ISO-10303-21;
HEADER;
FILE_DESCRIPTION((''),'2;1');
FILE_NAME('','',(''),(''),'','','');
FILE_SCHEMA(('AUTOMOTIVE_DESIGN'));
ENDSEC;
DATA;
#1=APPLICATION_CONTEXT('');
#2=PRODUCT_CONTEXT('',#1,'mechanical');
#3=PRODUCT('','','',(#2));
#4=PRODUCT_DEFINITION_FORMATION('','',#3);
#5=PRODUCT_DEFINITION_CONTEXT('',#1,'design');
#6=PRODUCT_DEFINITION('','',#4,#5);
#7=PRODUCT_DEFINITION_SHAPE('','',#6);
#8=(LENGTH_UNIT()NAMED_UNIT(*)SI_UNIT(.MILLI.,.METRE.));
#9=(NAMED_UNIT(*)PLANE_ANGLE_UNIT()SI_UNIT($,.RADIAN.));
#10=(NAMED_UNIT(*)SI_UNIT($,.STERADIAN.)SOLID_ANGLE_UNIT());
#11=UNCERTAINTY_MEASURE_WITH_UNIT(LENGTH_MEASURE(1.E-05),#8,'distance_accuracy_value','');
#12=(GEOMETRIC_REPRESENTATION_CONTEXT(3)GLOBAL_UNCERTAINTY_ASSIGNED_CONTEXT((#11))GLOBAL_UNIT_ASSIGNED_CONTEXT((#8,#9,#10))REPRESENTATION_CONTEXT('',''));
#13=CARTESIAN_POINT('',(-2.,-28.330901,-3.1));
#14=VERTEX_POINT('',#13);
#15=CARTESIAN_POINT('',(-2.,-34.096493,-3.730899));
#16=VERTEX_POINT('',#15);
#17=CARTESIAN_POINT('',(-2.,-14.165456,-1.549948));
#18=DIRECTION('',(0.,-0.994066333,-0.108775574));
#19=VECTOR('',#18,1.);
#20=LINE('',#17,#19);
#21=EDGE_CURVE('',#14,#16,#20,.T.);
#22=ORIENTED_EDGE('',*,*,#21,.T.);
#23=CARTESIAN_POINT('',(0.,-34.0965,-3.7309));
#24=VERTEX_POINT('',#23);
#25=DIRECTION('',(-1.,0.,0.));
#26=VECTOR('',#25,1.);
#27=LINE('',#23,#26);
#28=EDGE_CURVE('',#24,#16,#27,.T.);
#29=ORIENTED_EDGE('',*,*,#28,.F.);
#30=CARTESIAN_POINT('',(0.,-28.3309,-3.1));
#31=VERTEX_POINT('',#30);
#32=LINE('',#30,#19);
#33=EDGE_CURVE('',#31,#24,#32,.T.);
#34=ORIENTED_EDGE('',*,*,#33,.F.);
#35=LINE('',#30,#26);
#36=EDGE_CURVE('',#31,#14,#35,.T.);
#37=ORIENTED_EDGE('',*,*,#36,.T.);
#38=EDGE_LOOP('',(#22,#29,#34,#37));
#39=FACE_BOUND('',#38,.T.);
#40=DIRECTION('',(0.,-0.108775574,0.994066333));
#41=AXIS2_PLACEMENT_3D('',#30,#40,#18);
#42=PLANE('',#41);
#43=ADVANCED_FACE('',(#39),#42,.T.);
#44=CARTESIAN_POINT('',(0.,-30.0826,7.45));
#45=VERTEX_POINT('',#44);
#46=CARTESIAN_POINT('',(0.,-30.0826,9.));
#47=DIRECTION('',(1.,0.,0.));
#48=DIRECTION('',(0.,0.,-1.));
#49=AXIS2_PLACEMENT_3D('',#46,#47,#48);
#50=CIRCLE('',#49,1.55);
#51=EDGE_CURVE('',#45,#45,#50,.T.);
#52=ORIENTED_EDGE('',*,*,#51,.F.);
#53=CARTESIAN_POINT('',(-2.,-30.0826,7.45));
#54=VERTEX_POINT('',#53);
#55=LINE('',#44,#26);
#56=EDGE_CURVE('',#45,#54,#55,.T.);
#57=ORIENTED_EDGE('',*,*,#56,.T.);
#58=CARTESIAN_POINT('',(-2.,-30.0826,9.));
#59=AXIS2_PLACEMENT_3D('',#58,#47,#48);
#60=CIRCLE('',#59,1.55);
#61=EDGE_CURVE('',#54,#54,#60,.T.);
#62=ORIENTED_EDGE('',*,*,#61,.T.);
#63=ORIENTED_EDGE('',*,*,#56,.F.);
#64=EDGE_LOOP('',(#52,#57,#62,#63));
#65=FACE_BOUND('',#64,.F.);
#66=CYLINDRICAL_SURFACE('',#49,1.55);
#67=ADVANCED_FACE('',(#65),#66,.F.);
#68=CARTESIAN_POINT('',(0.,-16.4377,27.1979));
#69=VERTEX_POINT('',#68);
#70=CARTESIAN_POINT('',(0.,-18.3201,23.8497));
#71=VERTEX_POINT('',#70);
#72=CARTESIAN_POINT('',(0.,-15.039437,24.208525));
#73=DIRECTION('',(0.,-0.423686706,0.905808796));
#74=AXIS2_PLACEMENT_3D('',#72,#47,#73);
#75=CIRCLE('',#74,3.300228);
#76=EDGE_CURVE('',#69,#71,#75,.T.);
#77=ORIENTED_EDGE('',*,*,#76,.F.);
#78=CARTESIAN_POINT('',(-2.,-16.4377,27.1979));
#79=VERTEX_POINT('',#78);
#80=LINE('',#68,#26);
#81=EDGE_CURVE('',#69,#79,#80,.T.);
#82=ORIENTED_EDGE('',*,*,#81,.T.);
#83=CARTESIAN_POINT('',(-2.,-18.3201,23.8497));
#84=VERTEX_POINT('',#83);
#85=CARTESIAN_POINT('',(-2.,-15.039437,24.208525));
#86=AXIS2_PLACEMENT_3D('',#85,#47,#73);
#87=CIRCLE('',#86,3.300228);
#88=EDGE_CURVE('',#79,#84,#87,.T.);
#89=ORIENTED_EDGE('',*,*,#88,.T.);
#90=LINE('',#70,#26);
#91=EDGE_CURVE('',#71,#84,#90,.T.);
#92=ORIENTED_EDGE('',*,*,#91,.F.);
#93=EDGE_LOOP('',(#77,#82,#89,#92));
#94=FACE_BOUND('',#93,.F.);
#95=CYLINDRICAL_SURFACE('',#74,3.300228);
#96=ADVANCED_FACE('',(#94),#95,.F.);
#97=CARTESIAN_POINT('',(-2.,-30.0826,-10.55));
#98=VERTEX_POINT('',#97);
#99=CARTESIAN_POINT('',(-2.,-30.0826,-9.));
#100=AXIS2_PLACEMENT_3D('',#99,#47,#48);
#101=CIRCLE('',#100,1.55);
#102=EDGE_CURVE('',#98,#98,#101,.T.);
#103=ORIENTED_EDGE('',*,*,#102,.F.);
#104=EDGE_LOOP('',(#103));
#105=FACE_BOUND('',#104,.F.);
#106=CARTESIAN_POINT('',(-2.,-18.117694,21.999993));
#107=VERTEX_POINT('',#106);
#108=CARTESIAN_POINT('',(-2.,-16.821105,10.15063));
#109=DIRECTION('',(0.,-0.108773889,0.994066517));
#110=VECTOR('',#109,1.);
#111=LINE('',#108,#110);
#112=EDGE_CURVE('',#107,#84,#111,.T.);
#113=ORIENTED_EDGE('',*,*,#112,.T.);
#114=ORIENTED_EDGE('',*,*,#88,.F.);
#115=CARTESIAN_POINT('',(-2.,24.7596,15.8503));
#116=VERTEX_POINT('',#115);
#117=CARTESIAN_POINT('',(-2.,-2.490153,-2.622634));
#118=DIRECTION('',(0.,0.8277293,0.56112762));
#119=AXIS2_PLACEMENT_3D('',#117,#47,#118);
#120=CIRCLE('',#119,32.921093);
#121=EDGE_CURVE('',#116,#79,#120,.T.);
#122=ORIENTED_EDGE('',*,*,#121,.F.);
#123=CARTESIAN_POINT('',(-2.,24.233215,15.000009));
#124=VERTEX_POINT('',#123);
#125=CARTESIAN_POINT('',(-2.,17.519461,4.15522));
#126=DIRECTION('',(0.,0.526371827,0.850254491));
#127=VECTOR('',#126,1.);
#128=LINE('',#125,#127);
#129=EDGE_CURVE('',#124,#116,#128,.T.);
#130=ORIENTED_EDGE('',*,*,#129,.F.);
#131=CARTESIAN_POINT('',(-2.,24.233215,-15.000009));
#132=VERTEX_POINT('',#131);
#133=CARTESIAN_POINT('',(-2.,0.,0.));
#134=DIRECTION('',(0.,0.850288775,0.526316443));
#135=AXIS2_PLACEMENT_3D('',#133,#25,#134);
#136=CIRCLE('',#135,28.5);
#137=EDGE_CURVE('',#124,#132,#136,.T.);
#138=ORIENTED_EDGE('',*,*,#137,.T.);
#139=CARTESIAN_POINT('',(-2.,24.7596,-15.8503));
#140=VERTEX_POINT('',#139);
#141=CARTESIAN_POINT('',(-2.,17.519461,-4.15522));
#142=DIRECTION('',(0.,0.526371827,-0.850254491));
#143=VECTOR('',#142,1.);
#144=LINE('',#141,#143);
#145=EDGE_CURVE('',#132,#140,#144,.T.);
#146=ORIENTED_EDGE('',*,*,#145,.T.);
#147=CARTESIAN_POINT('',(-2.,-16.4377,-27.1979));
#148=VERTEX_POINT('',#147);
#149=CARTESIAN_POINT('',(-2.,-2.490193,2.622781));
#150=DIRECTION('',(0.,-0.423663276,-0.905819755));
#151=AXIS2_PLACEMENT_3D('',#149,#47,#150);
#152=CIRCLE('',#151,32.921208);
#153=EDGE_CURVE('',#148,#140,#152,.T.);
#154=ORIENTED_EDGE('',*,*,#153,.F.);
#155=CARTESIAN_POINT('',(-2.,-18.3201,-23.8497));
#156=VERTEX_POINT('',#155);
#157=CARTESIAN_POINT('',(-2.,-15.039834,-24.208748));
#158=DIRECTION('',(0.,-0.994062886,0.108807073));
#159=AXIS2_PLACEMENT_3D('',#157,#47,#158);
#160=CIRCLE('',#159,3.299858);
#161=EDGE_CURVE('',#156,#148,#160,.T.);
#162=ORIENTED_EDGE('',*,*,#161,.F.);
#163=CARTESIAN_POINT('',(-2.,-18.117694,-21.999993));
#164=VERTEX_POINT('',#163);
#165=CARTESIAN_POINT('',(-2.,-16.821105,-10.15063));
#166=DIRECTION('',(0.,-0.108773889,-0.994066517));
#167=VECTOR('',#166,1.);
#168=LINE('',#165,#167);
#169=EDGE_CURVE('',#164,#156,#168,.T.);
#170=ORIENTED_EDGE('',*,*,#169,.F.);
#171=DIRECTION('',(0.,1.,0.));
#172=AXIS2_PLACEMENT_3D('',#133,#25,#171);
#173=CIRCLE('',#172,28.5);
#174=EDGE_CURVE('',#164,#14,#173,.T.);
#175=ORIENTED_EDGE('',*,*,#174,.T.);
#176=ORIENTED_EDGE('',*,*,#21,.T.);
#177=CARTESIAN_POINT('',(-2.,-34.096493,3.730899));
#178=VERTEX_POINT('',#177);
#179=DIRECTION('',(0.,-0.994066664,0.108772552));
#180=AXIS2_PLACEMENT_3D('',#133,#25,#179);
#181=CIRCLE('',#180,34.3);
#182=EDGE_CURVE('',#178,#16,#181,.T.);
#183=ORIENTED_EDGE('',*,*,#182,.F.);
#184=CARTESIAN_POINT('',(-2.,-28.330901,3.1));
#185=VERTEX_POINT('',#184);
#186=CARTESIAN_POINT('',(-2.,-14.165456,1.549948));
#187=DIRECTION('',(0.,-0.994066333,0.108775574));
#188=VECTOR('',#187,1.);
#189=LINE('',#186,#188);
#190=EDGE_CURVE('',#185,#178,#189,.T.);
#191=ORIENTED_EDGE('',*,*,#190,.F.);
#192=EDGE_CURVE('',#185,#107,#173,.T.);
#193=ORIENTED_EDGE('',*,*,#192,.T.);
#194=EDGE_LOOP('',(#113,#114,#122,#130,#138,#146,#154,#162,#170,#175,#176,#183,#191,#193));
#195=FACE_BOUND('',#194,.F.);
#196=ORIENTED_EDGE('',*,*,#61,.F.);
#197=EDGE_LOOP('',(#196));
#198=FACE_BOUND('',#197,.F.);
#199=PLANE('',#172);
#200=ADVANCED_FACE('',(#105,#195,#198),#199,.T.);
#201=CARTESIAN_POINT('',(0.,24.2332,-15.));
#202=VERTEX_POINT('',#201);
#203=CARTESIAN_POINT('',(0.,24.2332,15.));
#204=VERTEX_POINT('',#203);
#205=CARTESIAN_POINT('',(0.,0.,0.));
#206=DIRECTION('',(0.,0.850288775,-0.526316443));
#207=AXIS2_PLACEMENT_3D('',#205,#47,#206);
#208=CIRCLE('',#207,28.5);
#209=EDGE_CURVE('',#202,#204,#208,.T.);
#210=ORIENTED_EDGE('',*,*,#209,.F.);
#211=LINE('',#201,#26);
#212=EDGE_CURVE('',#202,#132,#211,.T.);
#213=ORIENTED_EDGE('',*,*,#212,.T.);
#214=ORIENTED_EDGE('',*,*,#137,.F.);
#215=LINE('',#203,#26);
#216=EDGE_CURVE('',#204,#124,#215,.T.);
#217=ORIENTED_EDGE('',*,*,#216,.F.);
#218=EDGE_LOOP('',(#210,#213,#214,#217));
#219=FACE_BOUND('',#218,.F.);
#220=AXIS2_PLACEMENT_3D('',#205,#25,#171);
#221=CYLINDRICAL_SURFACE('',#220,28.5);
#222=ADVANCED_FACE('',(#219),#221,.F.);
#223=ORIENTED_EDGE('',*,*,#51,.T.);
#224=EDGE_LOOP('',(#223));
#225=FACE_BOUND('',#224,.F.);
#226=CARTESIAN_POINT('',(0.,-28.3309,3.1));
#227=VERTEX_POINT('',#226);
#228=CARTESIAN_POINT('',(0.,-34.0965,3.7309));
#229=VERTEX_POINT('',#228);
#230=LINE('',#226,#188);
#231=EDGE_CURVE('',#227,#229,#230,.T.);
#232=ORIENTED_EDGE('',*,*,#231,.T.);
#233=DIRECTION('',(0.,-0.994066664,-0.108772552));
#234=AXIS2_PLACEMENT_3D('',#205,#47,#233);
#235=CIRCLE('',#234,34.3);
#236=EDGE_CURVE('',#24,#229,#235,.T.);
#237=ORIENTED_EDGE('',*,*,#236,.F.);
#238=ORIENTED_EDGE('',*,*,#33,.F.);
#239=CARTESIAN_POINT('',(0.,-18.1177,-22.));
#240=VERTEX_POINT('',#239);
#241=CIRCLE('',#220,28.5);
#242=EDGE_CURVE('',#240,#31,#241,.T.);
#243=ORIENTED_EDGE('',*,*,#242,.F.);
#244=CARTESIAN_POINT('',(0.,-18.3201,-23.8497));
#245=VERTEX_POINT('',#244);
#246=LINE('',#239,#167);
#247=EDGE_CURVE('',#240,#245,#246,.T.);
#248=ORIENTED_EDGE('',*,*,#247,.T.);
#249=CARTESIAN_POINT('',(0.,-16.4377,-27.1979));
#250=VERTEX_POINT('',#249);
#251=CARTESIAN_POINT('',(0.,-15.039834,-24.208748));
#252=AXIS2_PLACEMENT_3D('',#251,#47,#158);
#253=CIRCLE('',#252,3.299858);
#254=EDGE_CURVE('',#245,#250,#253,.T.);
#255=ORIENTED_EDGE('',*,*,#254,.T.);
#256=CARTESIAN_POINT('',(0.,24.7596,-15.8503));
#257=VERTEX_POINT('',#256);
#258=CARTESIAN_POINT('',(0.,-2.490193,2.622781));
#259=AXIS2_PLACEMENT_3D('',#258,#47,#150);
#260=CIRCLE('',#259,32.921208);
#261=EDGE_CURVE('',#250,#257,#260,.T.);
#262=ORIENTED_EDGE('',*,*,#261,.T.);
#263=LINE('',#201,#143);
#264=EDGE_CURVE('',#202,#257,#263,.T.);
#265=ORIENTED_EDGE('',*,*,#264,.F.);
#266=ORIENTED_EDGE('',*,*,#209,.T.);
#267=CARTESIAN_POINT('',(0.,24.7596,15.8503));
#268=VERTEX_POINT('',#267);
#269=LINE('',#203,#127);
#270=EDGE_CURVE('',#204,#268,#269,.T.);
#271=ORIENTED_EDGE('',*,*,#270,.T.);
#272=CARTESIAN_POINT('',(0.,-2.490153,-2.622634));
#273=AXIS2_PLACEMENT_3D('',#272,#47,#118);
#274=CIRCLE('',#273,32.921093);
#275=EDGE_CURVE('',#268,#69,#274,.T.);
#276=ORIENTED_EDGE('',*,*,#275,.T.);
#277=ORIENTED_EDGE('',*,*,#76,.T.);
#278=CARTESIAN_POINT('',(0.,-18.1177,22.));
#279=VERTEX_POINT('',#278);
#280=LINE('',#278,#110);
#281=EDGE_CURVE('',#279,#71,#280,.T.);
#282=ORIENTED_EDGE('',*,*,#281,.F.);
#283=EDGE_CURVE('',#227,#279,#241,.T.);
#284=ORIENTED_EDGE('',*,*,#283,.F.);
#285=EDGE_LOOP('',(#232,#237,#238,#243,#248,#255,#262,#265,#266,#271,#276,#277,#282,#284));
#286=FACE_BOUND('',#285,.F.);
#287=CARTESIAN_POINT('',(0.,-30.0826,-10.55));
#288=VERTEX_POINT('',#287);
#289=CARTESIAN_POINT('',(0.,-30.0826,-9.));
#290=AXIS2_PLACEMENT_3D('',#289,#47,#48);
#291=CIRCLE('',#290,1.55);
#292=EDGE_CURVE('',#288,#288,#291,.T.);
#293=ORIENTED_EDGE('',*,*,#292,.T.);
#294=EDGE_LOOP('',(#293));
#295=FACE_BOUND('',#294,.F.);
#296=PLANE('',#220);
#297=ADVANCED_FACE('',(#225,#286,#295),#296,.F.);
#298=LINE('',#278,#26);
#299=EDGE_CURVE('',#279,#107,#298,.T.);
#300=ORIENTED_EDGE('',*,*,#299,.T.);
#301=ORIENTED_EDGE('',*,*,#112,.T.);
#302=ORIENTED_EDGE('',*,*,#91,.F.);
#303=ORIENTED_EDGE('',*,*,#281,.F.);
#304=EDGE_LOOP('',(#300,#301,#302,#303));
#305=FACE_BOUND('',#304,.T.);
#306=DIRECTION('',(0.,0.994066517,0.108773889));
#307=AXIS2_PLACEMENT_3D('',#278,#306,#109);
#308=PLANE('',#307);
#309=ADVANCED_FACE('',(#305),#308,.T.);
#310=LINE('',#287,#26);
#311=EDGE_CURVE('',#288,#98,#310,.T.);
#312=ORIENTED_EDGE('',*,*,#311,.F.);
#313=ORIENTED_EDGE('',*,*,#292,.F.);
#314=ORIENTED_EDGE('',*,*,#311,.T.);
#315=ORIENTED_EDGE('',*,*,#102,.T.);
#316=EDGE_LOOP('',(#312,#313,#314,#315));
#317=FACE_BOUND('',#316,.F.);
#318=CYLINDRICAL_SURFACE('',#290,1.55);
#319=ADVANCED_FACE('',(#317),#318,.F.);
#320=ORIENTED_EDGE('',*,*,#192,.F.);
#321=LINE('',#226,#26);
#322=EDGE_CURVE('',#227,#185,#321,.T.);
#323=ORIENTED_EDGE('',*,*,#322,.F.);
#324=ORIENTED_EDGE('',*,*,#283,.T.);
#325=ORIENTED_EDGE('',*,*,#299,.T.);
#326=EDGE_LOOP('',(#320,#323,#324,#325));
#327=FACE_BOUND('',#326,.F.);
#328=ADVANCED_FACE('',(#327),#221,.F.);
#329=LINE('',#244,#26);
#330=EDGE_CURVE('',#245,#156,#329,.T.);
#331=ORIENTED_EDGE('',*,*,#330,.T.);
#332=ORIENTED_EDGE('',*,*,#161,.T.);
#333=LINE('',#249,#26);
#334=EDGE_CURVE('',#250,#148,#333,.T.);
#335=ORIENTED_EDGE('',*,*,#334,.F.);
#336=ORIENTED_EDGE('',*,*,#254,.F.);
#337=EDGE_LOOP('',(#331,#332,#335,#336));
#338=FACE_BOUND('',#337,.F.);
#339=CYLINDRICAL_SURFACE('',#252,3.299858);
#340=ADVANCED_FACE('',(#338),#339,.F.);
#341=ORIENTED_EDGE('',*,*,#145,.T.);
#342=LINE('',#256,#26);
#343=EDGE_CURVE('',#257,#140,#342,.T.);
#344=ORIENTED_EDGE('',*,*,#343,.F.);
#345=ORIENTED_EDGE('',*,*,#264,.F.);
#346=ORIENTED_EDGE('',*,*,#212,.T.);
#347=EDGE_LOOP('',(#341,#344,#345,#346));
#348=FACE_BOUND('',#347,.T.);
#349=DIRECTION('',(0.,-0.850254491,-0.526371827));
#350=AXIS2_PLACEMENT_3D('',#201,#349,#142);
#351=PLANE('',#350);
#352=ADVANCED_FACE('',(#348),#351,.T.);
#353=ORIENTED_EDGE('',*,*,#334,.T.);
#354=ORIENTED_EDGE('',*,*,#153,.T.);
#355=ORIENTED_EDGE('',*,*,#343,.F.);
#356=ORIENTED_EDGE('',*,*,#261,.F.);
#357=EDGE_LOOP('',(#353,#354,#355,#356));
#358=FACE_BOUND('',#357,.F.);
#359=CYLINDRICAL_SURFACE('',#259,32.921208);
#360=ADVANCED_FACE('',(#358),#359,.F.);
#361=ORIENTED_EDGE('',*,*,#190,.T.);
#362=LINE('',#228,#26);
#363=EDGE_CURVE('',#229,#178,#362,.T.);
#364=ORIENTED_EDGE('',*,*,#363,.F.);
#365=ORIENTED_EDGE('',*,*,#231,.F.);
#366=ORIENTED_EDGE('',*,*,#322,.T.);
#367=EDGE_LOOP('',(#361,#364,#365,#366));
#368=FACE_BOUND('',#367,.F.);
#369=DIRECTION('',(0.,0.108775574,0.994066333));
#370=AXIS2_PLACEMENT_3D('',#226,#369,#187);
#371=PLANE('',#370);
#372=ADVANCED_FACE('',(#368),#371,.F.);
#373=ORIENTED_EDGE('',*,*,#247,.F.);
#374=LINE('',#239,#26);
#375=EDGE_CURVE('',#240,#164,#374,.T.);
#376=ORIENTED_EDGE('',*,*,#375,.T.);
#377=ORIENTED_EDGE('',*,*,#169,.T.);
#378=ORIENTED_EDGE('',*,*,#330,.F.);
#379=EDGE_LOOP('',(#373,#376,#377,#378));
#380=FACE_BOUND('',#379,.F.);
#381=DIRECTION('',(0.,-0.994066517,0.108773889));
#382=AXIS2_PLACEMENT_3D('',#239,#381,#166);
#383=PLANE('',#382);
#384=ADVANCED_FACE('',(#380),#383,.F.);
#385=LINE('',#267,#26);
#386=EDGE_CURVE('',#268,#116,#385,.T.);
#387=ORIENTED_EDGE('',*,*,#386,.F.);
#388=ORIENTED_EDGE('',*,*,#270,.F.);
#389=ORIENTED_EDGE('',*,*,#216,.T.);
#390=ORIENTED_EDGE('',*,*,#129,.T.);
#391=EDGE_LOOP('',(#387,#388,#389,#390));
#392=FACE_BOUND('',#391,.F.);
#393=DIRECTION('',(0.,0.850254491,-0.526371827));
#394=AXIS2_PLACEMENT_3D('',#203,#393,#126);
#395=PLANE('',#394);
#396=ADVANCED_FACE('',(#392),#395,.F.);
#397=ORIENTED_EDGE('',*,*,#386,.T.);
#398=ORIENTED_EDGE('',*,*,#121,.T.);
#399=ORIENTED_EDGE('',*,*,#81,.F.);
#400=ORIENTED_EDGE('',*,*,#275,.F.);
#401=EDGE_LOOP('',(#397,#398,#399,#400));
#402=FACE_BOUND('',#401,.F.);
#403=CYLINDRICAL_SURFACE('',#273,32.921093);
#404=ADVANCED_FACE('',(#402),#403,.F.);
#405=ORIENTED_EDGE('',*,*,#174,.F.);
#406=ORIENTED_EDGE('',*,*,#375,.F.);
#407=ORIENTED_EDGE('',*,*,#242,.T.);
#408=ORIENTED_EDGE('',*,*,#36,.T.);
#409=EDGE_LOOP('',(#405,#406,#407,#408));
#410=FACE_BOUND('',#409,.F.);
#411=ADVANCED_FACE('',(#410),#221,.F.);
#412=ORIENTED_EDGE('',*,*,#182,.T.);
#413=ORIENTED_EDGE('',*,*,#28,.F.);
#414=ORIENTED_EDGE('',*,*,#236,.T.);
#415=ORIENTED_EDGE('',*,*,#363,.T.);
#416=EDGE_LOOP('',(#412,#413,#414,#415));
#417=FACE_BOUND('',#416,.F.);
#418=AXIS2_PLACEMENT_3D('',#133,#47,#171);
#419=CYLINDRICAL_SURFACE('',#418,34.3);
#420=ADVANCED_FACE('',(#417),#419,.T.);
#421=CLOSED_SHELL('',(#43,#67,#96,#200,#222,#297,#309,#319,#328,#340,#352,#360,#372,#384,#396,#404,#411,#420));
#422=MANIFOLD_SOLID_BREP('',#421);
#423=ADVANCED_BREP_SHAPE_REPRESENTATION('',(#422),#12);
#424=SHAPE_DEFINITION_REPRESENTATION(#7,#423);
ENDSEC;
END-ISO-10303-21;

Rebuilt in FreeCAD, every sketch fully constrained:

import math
import FreeCAD as App
import Part
import Sketcher
Q = App.Units.Quantity


def add_polygon(sketch, points):
    """Adds a closed chain of lines whose ends are joined by coincident constraints."""
    first, n = sketch.GeometryCount, len(points)
    for a, b in zip(points, points[1:] + points[:1]):
        sketch.addGeometry(Part.LineSegment(App.Vector(*a, 0), App.Vector(*b, 0)), False)
    for i in range(n):
        sketch.addConstraint(Sketcher.Constraint("Coincident", first + i, 2, first + (i + 1) % n, 1))

doc = App.newDocument("Part")
body = doc.addObject("PartDesign::Body", "Body")

# Sketch on XY plane
sketch1 = doc.addObject("Sketcher::SketchObject", "Sketch")
body.addObject(sketch1)
sketch1.AttachmentSupport = (doc.XY_Plane, [""])
sketch1.MapMode = "FlatFace"
add_polygon(sketch1, [(-2, 28.5), (0, 28.5), (0, 34.3), (-2, 34.3)])  # lines 0-3
sketch1.addConstraint([
    Sketcher.Constraint("Horizontal", 0),
    Sketcher.Constraint("Vertical", 1),
    Sketcher.Constraint("Horizontal", 2),
    Sketcher.Constraint("Vertical", 3),
    Sketcher.Constraint("PointOnObject", 0, 2, -2),
    Sketcher.Constraint("DistanceX", 0, 1, 0, 2, Q("2 mm")),
    Sketcher.Constraint("DistanceY", 1, 1, 1, 2, Q("5.8 mm")),
    Sketcher.Constraint("DistanceY", -1, 1, 0, 2, Q("28.5 mm")),
])
revolution = doc.addObject("PartDesign::Revolution", "Revolution")
body.addObject(revolution)
revolution.Profile = sketch1
revolution.ReferenceAxis = (sketch1, ["H_Axis"])
revolution.Angle = 360

# Sketch on YZ plane
sketch2 = doc.addObject("Sketcher::SketchObject", "Sketch001")
body.addObject(sketch2)
sketch2.AttachmentSupport = (doc.YZ_Plane, [""])
sketch2.MapMode = "FlatFace"
sketch2.addGeometry([
    Part.ArcOfCircle(Part.Circle(App.Vector(0, 0, 0), App.Vector(0, 0, 1), 28.5), math.radians(-129.472542), math.radians(-31.756908)),  # 0
    Part.LineSegment(App.Vector(-18.1177, -22, 0), App.Vector(-18.3201, -23.8497, 0)),  # 1
    Part.ArcOfCircle(Part.Circle(App.Vector(-15.0396, -24.2087, 0), App.Vector(0, 0, 1), 3.300085), math.radians(173.754715), math.radians(244.933703)),  # 2
    Part.ArcOfCircle(Part.Circle(App.Vector(-2.4902, 2.6227, 0), App.Vector(0, 0, 1), 32.921132), math.radians(-115.066131), math.radians(-34.133865)),  # 3
    Part.LineSegment(App.Vector(24.7596, -15.8503, 0), App.Vector(24.2332, -15, 0)),  # 4
    Part.ArcOfCircle(Part.Circle(App.Vector(0, 0, 0), App.Vector(0, 0, 1), 28.5), math.radians(31.756908), math.radians(129.472542)),  # 5
    Part.LineSegment(App.Vector(24.2332, 15, 0), App.Vector(24.7596, 15.8503, 0)),  # 6
    Part.ArcOfCircle(Part.Circle(App.Vector(-2.4902, -2.6227, 0), App.Vector(0, 0, 1), 32.921168), math.radians(34.133865), math.radians(115.066131)),  # 7
    Part.ArcOfCircle(Part.Circle(App.Vector(-15.0396, 24.2087, 0), App.Vector(0, 0, 1), 3.3), math.radians(115.066297), math.radians(186.245285)),  # 8
    Part.LineSegment(App.Vector(-18.3201, 23.8497, 0), App.Vector(-18.1177, 22, 0)),  # 9
    Part.LineSegment(App.Vector(-34.0965, -3.7309, 0), App.Vector(-28.3309, -3.1, 0)),  # 10
    Part.ArcOfCircle(Part.Circle(App.Vector(0, 0, 0), App.Vector(0, 0, 1), 28.5), math.radians(173.755472), math.radians(186.244528)),  # 11
    Part.LineSegment(App.Vector(-28.3309, 3.1, 0), App.Vector(-34.0965, 3.7309, 0)),  # 12
    Part.ArcOfCircle(Part.Circle(App.Vector(0, 0, 0), App.Vector(0, 0, 1), 34.3), math.radians(173.755437), math.radians(186.244563)),  # 13
    Part.Circle(App.Vector(-30.0826, -9, 0), App.Vector(0, 0, 1), 1.55),  # 14
    Part.Circle(App.Vector(-30.0826, 9, 0), App.Vector(0, 0, 1), 1.55),  # 15
], False)
sketch2.addConstraint([
    Sketcher.Constraint("Coincident", 0, 1, 1, 1),
    Sketcher.Constraint("Tangent", 1, 2, 2, 1),
    Sketcher.Constraint("Tangent", 2, 2, 3, 1),
    Sketcher.Constraint("Coincident", 3, 2, 4, 1),
    Sketcher.Constraint("Coincident", 4, 2, 0, 2),
    Sketcher.Constraint("Coincident", 5, 1, 6, 1),
    Sketcher.Constraint("Coincident", 6, 2, 7, 1),
    Sketcher.Constraint("Tangent", 7, 2, 8, 1),
    Sketcher.Constraint("Tangent", 8, 2, 9, 1),
    Sketcher.Constraint("Coincident", 9, 2, 5, 2),
    Sketcher.Constraint("Coincident", 10, 2, 11, 2),
    Sketcher.Constraint("Coincident", 11, 1, 12, 1),
    Sketcher.Constraint("Coincident", 12, 2, 13, 1),
    Sketcher.Constraint("Coincident", 13, 2, 10, 1),
    Sketcher.Constraint("Coincident", 0, 3, -1, 1),
    Sketcher.Constraint("Coincident", 5, 3, -1, 1),
    Sketcher.Constraint("Coincident", 11, 3, -1, 1),
    Sketcher.Constraint("Coincident", 13, 3, -1, 1),
    Sketcher.Constraint("Equal", 0, 5),
    Sketcher.Constraint("Equal", 3, 7),
    Sketcher.Constraint("Equal", 2, 8),
    Sketcher.Constraint("Equal", 5, 11),
    Sketcher.Constraint("Equal", 14, 15),
    Sketcher.Constraint("Symmetric", 3, 3, 7, 3, -1),
    Sketcher.Constraint("Symmetric", 14, 3, 15, 3, -1),
    Sketcher.Constraint("Symmetric", 1, 2, 8, 2, -1),
    Sketcher.Constraint("Perpendicular", 9, 10),
    Sketcher.Constraint("Perpendicular", 1, 12),
    Sketcher.Constraint("Vertical", 4, 2, 5, 1),
    Sketcher.Constraint("Vertical", 3, 2, 6, 2),
    Sketcher.Constraint("Vertical", 10, 2, 11, 1),
    Sketcher.Constraint("Diameter", 14, Q("3.1 mm")),
    Sketcher.Constraint("Distance", 4, Q("1 mm")),
    Sketcher.Constraint("DistanceY", 14, 3, 15, 3, Q("18 mm")),
    Sketcher.Constraint("DistanceY", 10, 2, -1, 1, Q("3.1 mm")),
    Sketcher.Constraint("Radius", 0, Q("28.5 mm")),
    Sketcher.Constraint("Radius", 2, Q("3.3 mm")),
    Sketcher.Constraint("Radius", 3, Q("32.9211 mm")),
    Sketcher.Constraint("Radius", 13, Q("34.3 mm")),
    Sketcher.Constraint("DistanceY", 0, 1, -1, 1, Q("22 mm")),
    Sketcher.Constraint("DistanceY", 4, 2, -1, 1, Q("15 mm")),
    Sketcher.Constraint("Angle", 4, Q("121.7606 deg")),
    Sketcher.Constraint("DistanceX", 1, 2, -1, 1, Q("18.32 mm")),
    Sketcher.Constraint("DistanceX", 1, 2, 7, 3, Q("15.83 mm")),
    Sketcher.Constraint("DistanceX", 14, 3, 2, 3, Q("15.043 mm")),
])
pocket1 = doc.addObject("PartDesign::Pocket", "Pocket")
body.addObject(pocket1)
pocket1.Profile = sketch2
pocket1.Type = "ThroughAll"

doc.recompute()
